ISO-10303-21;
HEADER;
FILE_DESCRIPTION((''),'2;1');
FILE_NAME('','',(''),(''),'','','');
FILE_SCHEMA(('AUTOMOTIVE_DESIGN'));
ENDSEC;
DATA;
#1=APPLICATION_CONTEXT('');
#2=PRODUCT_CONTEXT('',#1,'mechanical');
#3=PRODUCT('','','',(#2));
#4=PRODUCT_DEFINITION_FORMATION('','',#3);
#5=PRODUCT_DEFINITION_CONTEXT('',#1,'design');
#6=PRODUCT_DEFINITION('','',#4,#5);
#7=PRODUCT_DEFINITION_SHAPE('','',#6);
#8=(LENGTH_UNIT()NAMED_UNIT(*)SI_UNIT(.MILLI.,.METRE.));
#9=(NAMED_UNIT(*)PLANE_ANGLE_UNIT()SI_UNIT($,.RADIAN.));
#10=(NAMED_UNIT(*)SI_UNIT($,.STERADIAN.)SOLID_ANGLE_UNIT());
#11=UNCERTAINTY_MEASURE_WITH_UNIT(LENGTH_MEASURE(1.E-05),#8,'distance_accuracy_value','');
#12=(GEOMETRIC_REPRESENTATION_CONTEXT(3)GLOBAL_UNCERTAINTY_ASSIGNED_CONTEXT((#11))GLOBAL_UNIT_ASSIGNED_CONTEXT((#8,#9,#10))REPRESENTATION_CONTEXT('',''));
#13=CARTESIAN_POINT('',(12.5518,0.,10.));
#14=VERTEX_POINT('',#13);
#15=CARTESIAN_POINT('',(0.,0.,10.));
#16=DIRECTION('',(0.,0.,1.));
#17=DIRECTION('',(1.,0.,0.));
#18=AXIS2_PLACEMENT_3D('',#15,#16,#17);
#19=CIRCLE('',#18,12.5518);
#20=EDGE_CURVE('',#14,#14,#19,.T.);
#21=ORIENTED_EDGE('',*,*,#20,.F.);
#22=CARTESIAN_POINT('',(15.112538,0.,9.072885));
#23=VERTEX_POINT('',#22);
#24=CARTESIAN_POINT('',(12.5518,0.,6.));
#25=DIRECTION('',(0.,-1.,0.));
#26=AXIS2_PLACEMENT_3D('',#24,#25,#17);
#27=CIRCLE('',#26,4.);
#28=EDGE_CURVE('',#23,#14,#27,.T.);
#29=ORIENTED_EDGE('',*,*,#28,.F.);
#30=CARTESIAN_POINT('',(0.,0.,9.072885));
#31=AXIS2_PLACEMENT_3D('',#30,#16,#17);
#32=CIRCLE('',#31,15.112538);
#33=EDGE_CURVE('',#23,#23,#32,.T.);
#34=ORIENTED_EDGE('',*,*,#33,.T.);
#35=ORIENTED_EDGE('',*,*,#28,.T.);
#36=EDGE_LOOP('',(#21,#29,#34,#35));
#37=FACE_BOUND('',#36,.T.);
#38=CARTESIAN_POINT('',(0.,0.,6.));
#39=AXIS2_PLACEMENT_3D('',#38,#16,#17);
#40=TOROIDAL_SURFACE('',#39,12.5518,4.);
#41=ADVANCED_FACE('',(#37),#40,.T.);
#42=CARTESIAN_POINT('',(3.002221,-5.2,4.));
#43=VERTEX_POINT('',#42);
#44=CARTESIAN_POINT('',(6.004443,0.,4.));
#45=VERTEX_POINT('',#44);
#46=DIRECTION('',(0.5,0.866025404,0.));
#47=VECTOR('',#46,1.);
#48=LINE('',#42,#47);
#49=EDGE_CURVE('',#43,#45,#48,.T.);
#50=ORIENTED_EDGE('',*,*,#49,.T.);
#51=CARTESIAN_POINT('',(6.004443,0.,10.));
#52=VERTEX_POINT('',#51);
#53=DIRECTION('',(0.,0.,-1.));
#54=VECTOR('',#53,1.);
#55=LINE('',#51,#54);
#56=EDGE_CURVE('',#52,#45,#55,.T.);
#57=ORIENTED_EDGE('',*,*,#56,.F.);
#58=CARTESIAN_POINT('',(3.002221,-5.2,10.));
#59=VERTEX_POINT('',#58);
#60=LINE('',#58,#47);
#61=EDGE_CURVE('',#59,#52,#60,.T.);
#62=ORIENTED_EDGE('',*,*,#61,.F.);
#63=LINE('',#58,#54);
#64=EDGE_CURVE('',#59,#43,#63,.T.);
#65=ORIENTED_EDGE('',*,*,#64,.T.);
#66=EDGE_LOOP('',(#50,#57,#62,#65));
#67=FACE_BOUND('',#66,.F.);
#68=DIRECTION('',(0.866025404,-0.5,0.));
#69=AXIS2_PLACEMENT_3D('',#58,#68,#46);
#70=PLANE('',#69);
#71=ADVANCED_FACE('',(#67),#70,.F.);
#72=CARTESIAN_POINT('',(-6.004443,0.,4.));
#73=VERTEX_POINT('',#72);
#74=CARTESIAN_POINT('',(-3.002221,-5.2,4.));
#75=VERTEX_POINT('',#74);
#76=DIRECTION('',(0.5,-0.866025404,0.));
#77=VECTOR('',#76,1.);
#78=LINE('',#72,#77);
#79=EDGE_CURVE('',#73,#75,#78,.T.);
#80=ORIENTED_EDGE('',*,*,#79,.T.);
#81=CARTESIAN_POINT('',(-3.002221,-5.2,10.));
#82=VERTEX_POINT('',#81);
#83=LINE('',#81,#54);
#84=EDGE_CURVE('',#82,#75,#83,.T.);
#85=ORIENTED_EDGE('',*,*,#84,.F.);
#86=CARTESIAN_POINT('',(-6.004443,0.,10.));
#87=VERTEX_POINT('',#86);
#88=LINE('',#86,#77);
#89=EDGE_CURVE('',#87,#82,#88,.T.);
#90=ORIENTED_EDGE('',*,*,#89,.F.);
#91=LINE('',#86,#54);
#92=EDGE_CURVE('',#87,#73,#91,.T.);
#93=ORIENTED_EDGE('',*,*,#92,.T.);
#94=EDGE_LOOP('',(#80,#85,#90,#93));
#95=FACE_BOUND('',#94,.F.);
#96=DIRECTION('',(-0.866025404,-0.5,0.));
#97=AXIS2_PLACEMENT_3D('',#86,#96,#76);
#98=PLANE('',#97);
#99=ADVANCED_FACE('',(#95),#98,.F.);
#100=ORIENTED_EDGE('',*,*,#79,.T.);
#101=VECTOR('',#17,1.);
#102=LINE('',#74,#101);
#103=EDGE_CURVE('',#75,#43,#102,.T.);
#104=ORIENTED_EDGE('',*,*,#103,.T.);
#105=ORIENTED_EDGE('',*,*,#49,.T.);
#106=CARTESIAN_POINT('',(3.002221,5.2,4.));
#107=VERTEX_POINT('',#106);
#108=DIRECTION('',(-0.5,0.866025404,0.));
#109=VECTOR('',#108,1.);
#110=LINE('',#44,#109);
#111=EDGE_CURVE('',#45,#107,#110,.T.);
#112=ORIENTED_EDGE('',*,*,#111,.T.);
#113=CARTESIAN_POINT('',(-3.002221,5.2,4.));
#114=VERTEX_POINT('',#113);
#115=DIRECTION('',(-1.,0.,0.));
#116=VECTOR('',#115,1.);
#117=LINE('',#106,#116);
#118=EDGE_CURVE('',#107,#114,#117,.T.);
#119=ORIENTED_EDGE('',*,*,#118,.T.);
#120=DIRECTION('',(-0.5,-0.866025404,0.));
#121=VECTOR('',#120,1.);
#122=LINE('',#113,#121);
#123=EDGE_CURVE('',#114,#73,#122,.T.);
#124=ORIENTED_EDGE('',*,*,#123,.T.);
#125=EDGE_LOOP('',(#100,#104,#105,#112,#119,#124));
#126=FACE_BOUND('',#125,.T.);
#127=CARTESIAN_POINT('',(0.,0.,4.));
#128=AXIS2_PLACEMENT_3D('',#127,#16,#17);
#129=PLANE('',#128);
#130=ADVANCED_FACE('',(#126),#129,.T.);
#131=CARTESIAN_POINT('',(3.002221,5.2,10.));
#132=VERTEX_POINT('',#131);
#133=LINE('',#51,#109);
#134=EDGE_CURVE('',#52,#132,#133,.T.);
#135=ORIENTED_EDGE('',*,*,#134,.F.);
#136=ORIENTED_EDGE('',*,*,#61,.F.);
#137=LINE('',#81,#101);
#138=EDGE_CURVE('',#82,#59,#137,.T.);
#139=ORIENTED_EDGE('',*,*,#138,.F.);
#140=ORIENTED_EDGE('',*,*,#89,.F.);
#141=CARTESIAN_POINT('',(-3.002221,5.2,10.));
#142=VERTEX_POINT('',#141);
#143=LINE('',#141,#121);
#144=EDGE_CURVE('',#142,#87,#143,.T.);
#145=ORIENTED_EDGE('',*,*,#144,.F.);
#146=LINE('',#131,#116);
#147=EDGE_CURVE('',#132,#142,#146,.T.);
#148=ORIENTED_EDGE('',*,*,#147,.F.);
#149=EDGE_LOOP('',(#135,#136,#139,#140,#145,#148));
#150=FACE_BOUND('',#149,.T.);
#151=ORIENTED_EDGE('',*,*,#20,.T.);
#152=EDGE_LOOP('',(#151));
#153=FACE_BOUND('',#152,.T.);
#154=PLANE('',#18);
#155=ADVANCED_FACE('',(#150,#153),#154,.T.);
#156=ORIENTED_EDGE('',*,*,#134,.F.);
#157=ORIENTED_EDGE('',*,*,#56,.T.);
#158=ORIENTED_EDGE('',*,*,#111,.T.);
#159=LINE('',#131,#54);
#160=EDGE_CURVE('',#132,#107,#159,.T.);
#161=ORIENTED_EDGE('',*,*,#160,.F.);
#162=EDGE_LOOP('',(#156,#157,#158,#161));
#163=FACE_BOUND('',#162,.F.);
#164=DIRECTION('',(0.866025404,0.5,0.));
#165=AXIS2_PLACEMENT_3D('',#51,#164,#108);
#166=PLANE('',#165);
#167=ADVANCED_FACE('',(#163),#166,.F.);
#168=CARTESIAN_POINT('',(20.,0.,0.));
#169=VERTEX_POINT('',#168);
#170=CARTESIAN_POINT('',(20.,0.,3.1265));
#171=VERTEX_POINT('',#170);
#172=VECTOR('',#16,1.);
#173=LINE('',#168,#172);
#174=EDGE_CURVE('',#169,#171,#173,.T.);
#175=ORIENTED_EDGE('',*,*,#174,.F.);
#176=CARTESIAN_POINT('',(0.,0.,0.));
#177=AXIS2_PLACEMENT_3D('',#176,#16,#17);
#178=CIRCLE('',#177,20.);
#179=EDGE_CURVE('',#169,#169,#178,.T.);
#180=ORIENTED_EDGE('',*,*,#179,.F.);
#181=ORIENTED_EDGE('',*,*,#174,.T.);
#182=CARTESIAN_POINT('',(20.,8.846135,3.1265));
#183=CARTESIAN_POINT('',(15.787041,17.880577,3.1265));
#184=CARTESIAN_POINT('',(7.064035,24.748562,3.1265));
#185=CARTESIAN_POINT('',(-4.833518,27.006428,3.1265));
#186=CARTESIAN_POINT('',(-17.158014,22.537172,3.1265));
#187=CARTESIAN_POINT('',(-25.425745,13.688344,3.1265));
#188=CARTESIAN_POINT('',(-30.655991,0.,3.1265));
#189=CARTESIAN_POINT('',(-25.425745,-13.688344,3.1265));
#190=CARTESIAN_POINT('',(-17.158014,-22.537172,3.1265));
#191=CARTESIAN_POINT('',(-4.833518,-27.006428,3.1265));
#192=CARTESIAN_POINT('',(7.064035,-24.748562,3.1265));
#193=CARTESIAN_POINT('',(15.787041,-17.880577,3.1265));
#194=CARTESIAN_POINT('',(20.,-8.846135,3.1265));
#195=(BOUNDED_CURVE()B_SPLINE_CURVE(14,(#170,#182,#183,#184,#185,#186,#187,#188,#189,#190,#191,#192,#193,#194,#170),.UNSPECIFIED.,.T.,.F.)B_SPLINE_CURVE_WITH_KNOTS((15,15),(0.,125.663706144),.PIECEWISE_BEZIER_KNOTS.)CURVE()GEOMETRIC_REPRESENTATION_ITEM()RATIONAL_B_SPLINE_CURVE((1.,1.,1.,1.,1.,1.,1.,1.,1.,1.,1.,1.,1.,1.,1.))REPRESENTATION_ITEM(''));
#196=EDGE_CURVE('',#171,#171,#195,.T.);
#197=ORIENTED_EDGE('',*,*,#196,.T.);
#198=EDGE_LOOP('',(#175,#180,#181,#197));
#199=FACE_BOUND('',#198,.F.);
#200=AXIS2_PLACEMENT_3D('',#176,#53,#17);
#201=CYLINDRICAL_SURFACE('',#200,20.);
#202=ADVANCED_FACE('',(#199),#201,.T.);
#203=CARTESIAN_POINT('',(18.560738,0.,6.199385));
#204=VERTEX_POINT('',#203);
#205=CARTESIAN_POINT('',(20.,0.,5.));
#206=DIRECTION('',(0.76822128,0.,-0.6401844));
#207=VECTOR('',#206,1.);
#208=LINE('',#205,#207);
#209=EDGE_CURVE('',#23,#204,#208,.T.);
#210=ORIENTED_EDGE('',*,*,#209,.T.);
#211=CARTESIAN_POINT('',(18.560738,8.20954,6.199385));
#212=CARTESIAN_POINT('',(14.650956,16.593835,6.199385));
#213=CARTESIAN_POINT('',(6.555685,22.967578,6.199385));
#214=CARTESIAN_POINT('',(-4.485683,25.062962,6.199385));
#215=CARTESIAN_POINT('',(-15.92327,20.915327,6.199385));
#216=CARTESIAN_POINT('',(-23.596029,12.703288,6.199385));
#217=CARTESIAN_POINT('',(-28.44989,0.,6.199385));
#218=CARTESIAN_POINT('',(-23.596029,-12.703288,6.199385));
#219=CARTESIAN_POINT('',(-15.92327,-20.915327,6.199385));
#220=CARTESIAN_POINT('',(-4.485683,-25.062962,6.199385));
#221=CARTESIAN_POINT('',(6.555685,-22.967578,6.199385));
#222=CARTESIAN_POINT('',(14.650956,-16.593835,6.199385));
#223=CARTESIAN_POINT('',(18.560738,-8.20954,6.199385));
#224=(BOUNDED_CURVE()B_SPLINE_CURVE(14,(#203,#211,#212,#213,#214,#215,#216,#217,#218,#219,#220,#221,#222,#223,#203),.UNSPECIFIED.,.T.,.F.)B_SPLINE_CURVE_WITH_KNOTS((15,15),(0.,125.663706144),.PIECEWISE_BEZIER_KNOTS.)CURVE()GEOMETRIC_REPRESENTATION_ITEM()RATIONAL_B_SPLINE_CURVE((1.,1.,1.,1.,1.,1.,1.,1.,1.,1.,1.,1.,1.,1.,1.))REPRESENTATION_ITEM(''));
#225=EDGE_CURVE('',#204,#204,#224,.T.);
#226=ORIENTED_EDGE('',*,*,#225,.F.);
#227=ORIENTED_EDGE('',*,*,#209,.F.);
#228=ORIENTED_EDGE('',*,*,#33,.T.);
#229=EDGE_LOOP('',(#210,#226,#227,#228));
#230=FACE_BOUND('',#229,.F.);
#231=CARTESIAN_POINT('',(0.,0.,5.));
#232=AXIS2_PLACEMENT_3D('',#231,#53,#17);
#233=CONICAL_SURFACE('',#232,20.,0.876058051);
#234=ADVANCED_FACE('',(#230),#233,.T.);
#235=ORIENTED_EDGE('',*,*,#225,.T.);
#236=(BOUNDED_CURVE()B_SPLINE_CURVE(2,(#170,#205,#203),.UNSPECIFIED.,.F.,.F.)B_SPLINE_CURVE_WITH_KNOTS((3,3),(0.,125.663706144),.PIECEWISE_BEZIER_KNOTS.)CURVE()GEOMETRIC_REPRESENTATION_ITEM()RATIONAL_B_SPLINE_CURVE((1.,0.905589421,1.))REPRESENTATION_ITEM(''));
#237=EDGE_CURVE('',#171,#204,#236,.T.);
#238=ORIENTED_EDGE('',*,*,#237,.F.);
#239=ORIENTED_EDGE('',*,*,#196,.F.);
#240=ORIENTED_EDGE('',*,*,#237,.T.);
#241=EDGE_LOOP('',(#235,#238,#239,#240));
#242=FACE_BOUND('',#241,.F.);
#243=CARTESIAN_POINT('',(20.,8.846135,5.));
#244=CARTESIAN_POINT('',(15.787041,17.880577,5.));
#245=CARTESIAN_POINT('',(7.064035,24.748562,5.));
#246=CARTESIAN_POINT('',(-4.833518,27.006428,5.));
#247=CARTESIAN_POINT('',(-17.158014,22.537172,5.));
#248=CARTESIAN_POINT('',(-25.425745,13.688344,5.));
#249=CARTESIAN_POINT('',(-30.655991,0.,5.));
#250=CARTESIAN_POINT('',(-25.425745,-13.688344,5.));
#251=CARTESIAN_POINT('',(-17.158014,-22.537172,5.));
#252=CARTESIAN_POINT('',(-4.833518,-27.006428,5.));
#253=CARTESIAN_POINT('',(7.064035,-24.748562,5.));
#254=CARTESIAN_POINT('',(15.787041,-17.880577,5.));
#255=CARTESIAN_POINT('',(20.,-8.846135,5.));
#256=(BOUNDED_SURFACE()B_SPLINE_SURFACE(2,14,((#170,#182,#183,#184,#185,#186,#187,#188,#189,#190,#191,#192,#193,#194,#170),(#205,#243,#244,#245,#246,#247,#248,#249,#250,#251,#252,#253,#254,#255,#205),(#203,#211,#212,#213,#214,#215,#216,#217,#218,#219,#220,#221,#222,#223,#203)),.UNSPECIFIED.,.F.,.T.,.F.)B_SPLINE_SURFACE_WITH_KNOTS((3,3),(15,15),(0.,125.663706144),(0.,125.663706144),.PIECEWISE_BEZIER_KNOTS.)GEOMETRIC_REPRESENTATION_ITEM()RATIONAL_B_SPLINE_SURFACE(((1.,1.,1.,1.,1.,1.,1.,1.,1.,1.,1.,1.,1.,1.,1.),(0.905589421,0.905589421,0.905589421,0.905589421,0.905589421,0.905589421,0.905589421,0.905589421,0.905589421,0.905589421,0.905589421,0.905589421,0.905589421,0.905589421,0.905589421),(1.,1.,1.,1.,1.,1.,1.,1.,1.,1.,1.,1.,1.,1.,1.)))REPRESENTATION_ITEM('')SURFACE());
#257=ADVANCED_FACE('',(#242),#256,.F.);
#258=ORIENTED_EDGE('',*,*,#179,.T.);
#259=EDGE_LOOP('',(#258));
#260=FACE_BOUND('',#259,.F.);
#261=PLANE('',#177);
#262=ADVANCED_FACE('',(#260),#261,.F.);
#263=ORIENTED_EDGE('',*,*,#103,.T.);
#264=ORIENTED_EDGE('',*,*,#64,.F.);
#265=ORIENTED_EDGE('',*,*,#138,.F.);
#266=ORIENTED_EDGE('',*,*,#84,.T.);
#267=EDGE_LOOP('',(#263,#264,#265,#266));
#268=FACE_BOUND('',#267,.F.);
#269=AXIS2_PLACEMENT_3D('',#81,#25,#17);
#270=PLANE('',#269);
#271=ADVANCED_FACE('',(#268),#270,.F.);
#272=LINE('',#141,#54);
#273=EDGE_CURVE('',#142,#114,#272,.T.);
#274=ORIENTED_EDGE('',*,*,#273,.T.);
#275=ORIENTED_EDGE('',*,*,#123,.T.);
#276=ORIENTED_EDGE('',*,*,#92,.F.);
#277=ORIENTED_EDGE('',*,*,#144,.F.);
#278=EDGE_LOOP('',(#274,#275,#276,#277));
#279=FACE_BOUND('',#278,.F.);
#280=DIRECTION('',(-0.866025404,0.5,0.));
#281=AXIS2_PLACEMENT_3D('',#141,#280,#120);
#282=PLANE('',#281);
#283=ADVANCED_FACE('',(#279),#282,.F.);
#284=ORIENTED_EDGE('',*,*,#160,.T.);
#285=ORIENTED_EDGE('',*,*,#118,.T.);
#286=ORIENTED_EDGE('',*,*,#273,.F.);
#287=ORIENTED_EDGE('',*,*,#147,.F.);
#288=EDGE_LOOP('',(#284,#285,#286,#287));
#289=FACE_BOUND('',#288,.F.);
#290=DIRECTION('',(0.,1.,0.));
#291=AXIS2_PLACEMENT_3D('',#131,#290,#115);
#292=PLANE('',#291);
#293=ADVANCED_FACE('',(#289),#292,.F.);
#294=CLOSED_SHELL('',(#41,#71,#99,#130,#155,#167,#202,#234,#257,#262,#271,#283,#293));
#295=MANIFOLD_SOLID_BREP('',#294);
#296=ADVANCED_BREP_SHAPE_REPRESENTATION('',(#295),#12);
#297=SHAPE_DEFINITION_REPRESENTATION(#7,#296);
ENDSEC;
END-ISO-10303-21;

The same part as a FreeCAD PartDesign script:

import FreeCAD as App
import Part
import Sketcher
from FreeCAD import Vector
Q = App.Units.Quantity


def edges_at(feature, points):
    """Names of the edges that pass closest to the given points."""
    edges = feature.Shape.Edges
    near = lambda p: min(range(len(edges)), key=lambda i: edges[i].distToShape(Part.Vertex(*p))[0])
    return sorted({f"Edge{near(p) + 1}" for p in points})

doc = App.newDocument("Part")
body = doc.addObject("PartDesign::Body", "Body")

# Sketch on XY plane
sketch1 = body.newObject("Sketcher::SketchObject", "Sketch")
sketch1.AttachmentSupport = (doc.getObject("XY_Plane"), [""])
sketch1.MapMode = "FlatFace"
sketch1.addGeometry(Part.Circle(Vector(0, 0, 0), Vector(0, 0, 1), 20), False)
sketch1.addConstraint(Sketcher.Constraint("Coincident", 0, 3, -1, 1))
sketch1.addConstraint(Sketcher.Constraint("Diameter", 0, Q("40 mm")))
pad1 = body.newObject("PartDesign::Pad", "Pad")
pad1.Profile = sketch1
pad1.Length = 10

# Sketch on XY plane
sketch2 = body.newObject("Sketcher::SketchObject", "Sketch001")
sketch2.AttachmentSupport = (doc.getObject("XY_Plane"), [""])
sketch2.MapMode = "FlatFace"
sketch2.AttachmentOffset = App.Placement(Vector(0, 0, 10), App.Rotation())
sketch2.addGeometry(Part.LineSegment(Vector(3, -5, 0), Vector(6, 0, 0)), False)
sketch2.addGeometry(Part.LineSegment(Vector(6, 0, 0), Vector(3, 5, 0)), False)
sketch2.addGeometry(Part.LineSegment(Vector(3, 5, 0), Vector(-3, 5, 0)), False)
sketch2.addGeometry(Part.LineSegment(Vector(-3, 5, 0), Vector(-6, 0, 0)), False)
sketch2.addGeometry(Part.LineSegment(Vector(-6, 0, 0), Vector(-3, -5, 0)), False)
sketch2.addGeometry(Part.LineSegment(Vector(-3, -5, 0), Vector(3, -5, 0)), False)
sketch2.addConstraint(Sketcher.Constraint("Coincident", 0, 2, 1, 1))
sketch2.addConstraint(Sketcher.Constraint("Coincident", 1, 2, 2, 1))
sketch2.addConstraint(Sketcher.Constraint("Coincident", 2, 2, 3, 1))
sketch2.addConstraint(Sketcher.Constraint("Coincident", 3, 2, 4, 1))
sketch2.addConstraint(Sketcher.Constraint("Coincident", 4, 2, 5, 1))
sketch2.addConstraint(Sketcher.Constraint("Coincident", 5, 2, 0, 1))
sketch2.addConstraint(Sketcher.Constraint("Horizontal", 2))
sketch2.addConstraint(Sketcher.Constraint("Horizontal", 5))
sketch2.addConstraint(Sketcher.Constraint("Symmetric", 0, 2, 3, 2, -1, 1))
sketch2.addConstraint(Sketcher.Constraint("Symmetric", 1, 2, 4, 2, -1, 1))
sketch2.addConstraint(Sketcher.Constraint("PointOnObject", 0, 2, -1))
sketch2.addConstraint(Sketcher.Constraint("Parallel", 0, 3))
sketch2.addConstraint(Sketcher.Constraint("Vertical", 2, 2, 4, 2))
sketch2.addConstraint(Sketcher.Constraint("Angle", 0, Q("60 deg")))
sketch2.addConstraint(Sketcher.Constraint("DistanceY", -1, 1, 1, 2, Q("5.2 mm")))
sketch2.addConstraint(Sketcher.Constraint("DistanceX", 2, 2, 2, 1, Q("6.004443 mm")))
pocket1 = body.newObject("PartDesign::Pocket", "Pocket")
pocket1.Profile = sketch2
pocket1.Length = 6
doc.recompute()

chamfer = body.newObject("PartDesign::Chamfer", "Chamfer")
chamfer.Base = (pocket1, edges_at(pocket1, [(-20, 0, 10)]))
chamfer.ChamferType = "Two distances"
chamfer.Size = 6
chamfer.Size2 = 5
chamfer.FlipDirection = True
doc.recompute()

fillet = body.newObject("PartDesign::Fillet", "Fillet")
fillet.Base = (chamfer, edges_at(chamfer, [(-14, 0, 10), (-20, 0, 5)]))
fillet.Radius = 4

doc.recompute()
